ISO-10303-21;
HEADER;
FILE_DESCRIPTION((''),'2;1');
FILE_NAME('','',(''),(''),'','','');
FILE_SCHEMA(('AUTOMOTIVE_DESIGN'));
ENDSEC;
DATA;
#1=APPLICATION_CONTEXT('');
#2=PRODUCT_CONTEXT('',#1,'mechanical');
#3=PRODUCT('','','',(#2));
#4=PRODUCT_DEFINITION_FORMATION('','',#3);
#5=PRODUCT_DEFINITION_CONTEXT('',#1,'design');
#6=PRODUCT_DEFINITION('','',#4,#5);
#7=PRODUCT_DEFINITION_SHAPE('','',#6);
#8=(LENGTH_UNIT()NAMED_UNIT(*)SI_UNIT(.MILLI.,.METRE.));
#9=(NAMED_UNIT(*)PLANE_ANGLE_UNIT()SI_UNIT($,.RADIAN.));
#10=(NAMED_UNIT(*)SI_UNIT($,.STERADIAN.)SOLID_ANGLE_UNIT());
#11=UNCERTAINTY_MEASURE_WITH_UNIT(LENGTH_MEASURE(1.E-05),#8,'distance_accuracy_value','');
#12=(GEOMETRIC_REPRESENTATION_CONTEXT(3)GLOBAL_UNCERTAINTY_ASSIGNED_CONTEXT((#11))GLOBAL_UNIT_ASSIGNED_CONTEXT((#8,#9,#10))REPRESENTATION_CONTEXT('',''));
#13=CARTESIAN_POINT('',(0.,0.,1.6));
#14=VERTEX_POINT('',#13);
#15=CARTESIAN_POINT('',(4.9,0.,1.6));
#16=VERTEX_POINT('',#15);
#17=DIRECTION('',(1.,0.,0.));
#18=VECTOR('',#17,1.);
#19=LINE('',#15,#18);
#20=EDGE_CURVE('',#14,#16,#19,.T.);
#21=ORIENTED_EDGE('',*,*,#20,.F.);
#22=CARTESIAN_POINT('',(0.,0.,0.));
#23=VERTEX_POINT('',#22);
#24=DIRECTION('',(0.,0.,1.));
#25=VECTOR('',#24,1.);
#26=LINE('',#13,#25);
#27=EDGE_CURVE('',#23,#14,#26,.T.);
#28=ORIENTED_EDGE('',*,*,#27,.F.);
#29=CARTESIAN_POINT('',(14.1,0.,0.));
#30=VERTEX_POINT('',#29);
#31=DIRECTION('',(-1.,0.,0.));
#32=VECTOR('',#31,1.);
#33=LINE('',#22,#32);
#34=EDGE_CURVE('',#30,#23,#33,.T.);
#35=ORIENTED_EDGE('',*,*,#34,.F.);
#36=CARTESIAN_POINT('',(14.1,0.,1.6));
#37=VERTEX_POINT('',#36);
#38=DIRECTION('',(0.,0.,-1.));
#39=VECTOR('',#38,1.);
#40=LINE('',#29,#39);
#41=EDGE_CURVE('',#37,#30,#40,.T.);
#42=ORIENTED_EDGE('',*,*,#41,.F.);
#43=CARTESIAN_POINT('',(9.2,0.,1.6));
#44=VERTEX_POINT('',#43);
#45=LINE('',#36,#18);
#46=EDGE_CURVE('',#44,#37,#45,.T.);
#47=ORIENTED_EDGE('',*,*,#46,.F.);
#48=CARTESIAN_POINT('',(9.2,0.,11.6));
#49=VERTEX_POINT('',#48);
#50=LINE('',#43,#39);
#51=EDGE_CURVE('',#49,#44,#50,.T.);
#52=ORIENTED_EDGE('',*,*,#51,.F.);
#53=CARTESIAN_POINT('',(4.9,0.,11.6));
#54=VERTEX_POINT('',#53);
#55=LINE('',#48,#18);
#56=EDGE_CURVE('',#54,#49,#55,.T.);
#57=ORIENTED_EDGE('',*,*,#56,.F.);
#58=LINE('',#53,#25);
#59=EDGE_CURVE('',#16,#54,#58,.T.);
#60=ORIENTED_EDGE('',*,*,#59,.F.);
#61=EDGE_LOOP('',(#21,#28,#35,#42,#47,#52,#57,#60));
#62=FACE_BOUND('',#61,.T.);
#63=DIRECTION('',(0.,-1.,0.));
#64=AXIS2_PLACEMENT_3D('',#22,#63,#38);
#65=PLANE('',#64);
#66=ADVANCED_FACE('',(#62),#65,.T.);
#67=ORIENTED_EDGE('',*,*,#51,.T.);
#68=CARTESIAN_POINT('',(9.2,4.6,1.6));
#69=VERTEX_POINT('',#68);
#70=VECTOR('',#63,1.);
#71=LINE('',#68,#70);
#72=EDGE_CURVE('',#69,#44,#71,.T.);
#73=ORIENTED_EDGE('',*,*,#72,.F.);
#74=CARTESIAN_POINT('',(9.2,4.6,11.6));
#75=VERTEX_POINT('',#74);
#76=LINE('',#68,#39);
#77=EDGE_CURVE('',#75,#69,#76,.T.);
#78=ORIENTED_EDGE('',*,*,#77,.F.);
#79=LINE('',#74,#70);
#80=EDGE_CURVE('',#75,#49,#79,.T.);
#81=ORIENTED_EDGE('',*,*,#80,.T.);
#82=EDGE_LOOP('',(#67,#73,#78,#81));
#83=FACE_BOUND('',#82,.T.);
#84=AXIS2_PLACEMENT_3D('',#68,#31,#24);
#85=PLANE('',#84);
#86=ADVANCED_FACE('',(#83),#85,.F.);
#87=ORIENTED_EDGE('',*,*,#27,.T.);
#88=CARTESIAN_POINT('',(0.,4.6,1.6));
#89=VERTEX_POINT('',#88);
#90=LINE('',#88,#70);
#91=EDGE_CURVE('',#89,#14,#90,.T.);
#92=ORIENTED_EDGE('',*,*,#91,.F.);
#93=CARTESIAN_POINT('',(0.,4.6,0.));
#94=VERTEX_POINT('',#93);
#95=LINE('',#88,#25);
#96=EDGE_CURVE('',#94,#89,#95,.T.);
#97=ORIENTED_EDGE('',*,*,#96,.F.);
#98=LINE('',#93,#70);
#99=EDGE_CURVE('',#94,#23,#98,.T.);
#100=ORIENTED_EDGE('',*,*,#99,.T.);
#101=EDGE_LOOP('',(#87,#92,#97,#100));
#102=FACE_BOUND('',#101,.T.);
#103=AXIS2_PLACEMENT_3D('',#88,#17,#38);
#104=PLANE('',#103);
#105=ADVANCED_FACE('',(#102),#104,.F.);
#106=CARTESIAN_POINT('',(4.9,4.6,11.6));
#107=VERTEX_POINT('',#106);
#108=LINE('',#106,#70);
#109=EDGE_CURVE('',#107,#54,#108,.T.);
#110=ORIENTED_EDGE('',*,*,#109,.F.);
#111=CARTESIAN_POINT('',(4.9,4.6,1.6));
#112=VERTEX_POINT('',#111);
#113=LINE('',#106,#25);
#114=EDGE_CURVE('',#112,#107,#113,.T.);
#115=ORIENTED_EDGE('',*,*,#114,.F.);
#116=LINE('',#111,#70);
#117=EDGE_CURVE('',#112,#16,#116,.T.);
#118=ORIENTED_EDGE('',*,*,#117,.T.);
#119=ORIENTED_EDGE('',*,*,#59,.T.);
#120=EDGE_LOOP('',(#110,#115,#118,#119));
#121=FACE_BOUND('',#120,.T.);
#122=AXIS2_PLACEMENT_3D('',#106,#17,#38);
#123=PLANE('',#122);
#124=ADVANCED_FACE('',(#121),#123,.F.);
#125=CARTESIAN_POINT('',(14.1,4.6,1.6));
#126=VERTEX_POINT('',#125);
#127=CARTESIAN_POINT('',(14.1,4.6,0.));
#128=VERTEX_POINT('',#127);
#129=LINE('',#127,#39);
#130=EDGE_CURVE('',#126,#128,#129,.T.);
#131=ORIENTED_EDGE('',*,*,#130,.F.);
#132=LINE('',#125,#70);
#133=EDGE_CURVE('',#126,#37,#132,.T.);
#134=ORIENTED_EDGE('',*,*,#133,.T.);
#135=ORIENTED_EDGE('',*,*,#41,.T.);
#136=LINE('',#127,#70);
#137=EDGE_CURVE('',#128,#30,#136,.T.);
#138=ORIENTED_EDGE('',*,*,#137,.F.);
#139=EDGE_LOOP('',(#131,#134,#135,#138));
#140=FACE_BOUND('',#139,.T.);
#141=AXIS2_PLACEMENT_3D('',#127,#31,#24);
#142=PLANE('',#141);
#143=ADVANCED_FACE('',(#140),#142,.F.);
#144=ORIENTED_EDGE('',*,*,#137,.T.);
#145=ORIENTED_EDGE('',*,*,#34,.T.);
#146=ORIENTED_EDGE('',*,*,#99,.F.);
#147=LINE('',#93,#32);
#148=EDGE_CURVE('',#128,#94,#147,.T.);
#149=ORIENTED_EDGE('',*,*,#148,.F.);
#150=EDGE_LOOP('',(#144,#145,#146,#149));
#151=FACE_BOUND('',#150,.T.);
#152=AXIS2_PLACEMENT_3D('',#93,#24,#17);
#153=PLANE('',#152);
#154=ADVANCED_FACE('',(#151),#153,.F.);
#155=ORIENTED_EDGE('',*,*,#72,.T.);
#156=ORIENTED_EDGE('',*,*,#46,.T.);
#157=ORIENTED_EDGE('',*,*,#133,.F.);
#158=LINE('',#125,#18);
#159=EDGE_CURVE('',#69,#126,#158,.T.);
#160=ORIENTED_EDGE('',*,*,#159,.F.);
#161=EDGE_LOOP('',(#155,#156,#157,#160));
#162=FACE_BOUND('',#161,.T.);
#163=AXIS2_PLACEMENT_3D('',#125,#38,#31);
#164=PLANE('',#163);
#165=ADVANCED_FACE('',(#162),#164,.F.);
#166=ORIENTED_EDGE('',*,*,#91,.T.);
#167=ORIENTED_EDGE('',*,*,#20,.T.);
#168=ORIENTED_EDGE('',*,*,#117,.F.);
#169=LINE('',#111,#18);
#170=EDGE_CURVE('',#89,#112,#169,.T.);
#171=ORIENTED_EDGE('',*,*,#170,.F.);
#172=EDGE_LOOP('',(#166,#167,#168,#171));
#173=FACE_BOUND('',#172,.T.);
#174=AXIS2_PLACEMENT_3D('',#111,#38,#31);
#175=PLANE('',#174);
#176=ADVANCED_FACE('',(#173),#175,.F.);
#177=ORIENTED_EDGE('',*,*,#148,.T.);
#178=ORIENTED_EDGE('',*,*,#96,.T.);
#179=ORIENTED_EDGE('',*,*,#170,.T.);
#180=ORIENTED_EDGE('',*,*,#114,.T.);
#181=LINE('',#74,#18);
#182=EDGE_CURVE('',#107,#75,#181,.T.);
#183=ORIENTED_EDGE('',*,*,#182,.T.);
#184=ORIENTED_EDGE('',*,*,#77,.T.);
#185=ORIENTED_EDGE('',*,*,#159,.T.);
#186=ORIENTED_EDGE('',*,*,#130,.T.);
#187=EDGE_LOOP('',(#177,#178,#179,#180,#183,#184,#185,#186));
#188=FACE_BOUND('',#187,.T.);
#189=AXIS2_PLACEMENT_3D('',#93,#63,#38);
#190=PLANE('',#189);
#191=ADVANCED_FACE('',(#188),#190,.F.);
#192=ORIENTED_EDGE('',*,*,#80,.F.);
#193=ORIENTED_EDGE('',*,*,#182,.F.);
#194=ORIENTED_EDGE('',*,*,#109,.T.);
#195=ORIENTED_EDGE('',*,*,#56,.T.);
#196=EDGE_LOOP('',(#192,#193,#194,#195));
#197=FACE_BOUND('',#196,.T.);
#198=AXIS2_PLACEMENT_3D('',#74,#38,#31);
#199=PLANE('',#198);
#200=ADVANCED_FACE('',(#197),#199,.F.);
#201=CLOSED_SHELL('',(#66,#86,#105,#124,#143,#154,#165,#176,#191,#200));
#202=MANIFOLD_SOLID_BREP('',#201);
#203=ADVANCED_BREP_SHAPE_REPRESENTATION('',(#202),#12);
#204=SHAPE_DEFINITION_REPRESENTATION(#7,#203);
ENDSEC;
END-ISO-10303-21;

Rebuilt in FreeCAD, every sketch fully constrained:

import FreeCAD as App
import Part
import Sketcher

V = App.Vector
Q = App.Units.Quantity

doc = App.newDocument("Part")
body = doc.addObject("PartDesign::Body", "Body")

sketch1 = body.newObject("Sketcher::SketchObject", "Sketch")
sketch1.AttachmentSupport = (doc.getObject("XZ_Plane"), [""])
sketch1.MapMode = "FlatFace"
sketch1.addGeometry([
    Part.LineSegment(V(14.1, 0, 0), V(0, 0, 0)),
    Part.LineSegment(V(0, 0, 0), V(0, 1.6, 0)),
    Part.LineSegment(V(0, 1.6, 0), V(4.9, 1.6, 0)),
    Part.LineSegment(V(4.9, 1.6, 0), V(4.9, 11.6, 0)),
    Part.LineSegment(V(4.9, 11.6, 0), V(9.2, 11.6, 0)),
    Part.LineSegment(V(9.2, 11.6, 0), V(9.2, 1.6, 0)),
    Part.LineSegment(V(9.2, 1.6, 0), V(14.1, 1.6, 0)),
    Part.LineSegment(V(14.1, 1.6, 0), V(14.1, 0, 0)),
], False)
sketch1.addConstraint([
    Sketcher.Constraint("Coincident", 0, 2, 1, 1),
    Sketcher.Constraint("Coincident", 1, 2, 2, 1),
    Sketcher.Constraint("Coincident", 2, 2, 3, 1),
    Sketcher.Constraint("Coincident", 3, 2, 4, 1),
    Sketcher.Constraint("Coincident", 4, 2, 5, 1),
    Sketcher.Constraint("Coincident", 5, 2, 6, 1),
    Sketcher.Constraint("Coincident", 6, 2, 7, 1),
    Sketcher.Constraint("Coincident", 7, 2, 0, 1),
    Sketcher.Constraint("Horizontal", 0),
    Sketcher.Constraint("Vertical", 1),
    Sketcher.Constraint("Horizontal", 2),
    Sketcher.Constraint("Vertical", 3),
    Sketcher.Constraint("Horizontal", 4),
    Sketcher.Constraint("Vertical", 5),
    Sketcher.Constraint("Horizontal", 6),
    Sketcher.Constraint("Vertical", 7),
    Sketcher.Constraint("Coincident", 0, 2, -1, 1),
    Sketcher.Constraint("Horizontal", 2, 2, 5, 2),
    Sketcher.Constraint("Equal", 2, 6),
    Sketcher.Constraint("DistanceY", 3, 1, 3, 2, Q("10 mm")),
    Sketcher.Constraint("DistanceX", 0, 2, 0, 1, Q("14.1 mm")),
    Sketcher.Constraint("DistanceX", 2, 1, 2, 2, Q("4.9 mm")),
    Sketcher.Constraint("DistanceY", 1, 1, 1, 2, Q("1.6 mm")),
])
pad1 = body.newObject("PartDesign::Pad", "Pad")
pad1.Profile = sketch1
pad1.Length = 4.6
pad1.Reversed = True

doc.recompute()
